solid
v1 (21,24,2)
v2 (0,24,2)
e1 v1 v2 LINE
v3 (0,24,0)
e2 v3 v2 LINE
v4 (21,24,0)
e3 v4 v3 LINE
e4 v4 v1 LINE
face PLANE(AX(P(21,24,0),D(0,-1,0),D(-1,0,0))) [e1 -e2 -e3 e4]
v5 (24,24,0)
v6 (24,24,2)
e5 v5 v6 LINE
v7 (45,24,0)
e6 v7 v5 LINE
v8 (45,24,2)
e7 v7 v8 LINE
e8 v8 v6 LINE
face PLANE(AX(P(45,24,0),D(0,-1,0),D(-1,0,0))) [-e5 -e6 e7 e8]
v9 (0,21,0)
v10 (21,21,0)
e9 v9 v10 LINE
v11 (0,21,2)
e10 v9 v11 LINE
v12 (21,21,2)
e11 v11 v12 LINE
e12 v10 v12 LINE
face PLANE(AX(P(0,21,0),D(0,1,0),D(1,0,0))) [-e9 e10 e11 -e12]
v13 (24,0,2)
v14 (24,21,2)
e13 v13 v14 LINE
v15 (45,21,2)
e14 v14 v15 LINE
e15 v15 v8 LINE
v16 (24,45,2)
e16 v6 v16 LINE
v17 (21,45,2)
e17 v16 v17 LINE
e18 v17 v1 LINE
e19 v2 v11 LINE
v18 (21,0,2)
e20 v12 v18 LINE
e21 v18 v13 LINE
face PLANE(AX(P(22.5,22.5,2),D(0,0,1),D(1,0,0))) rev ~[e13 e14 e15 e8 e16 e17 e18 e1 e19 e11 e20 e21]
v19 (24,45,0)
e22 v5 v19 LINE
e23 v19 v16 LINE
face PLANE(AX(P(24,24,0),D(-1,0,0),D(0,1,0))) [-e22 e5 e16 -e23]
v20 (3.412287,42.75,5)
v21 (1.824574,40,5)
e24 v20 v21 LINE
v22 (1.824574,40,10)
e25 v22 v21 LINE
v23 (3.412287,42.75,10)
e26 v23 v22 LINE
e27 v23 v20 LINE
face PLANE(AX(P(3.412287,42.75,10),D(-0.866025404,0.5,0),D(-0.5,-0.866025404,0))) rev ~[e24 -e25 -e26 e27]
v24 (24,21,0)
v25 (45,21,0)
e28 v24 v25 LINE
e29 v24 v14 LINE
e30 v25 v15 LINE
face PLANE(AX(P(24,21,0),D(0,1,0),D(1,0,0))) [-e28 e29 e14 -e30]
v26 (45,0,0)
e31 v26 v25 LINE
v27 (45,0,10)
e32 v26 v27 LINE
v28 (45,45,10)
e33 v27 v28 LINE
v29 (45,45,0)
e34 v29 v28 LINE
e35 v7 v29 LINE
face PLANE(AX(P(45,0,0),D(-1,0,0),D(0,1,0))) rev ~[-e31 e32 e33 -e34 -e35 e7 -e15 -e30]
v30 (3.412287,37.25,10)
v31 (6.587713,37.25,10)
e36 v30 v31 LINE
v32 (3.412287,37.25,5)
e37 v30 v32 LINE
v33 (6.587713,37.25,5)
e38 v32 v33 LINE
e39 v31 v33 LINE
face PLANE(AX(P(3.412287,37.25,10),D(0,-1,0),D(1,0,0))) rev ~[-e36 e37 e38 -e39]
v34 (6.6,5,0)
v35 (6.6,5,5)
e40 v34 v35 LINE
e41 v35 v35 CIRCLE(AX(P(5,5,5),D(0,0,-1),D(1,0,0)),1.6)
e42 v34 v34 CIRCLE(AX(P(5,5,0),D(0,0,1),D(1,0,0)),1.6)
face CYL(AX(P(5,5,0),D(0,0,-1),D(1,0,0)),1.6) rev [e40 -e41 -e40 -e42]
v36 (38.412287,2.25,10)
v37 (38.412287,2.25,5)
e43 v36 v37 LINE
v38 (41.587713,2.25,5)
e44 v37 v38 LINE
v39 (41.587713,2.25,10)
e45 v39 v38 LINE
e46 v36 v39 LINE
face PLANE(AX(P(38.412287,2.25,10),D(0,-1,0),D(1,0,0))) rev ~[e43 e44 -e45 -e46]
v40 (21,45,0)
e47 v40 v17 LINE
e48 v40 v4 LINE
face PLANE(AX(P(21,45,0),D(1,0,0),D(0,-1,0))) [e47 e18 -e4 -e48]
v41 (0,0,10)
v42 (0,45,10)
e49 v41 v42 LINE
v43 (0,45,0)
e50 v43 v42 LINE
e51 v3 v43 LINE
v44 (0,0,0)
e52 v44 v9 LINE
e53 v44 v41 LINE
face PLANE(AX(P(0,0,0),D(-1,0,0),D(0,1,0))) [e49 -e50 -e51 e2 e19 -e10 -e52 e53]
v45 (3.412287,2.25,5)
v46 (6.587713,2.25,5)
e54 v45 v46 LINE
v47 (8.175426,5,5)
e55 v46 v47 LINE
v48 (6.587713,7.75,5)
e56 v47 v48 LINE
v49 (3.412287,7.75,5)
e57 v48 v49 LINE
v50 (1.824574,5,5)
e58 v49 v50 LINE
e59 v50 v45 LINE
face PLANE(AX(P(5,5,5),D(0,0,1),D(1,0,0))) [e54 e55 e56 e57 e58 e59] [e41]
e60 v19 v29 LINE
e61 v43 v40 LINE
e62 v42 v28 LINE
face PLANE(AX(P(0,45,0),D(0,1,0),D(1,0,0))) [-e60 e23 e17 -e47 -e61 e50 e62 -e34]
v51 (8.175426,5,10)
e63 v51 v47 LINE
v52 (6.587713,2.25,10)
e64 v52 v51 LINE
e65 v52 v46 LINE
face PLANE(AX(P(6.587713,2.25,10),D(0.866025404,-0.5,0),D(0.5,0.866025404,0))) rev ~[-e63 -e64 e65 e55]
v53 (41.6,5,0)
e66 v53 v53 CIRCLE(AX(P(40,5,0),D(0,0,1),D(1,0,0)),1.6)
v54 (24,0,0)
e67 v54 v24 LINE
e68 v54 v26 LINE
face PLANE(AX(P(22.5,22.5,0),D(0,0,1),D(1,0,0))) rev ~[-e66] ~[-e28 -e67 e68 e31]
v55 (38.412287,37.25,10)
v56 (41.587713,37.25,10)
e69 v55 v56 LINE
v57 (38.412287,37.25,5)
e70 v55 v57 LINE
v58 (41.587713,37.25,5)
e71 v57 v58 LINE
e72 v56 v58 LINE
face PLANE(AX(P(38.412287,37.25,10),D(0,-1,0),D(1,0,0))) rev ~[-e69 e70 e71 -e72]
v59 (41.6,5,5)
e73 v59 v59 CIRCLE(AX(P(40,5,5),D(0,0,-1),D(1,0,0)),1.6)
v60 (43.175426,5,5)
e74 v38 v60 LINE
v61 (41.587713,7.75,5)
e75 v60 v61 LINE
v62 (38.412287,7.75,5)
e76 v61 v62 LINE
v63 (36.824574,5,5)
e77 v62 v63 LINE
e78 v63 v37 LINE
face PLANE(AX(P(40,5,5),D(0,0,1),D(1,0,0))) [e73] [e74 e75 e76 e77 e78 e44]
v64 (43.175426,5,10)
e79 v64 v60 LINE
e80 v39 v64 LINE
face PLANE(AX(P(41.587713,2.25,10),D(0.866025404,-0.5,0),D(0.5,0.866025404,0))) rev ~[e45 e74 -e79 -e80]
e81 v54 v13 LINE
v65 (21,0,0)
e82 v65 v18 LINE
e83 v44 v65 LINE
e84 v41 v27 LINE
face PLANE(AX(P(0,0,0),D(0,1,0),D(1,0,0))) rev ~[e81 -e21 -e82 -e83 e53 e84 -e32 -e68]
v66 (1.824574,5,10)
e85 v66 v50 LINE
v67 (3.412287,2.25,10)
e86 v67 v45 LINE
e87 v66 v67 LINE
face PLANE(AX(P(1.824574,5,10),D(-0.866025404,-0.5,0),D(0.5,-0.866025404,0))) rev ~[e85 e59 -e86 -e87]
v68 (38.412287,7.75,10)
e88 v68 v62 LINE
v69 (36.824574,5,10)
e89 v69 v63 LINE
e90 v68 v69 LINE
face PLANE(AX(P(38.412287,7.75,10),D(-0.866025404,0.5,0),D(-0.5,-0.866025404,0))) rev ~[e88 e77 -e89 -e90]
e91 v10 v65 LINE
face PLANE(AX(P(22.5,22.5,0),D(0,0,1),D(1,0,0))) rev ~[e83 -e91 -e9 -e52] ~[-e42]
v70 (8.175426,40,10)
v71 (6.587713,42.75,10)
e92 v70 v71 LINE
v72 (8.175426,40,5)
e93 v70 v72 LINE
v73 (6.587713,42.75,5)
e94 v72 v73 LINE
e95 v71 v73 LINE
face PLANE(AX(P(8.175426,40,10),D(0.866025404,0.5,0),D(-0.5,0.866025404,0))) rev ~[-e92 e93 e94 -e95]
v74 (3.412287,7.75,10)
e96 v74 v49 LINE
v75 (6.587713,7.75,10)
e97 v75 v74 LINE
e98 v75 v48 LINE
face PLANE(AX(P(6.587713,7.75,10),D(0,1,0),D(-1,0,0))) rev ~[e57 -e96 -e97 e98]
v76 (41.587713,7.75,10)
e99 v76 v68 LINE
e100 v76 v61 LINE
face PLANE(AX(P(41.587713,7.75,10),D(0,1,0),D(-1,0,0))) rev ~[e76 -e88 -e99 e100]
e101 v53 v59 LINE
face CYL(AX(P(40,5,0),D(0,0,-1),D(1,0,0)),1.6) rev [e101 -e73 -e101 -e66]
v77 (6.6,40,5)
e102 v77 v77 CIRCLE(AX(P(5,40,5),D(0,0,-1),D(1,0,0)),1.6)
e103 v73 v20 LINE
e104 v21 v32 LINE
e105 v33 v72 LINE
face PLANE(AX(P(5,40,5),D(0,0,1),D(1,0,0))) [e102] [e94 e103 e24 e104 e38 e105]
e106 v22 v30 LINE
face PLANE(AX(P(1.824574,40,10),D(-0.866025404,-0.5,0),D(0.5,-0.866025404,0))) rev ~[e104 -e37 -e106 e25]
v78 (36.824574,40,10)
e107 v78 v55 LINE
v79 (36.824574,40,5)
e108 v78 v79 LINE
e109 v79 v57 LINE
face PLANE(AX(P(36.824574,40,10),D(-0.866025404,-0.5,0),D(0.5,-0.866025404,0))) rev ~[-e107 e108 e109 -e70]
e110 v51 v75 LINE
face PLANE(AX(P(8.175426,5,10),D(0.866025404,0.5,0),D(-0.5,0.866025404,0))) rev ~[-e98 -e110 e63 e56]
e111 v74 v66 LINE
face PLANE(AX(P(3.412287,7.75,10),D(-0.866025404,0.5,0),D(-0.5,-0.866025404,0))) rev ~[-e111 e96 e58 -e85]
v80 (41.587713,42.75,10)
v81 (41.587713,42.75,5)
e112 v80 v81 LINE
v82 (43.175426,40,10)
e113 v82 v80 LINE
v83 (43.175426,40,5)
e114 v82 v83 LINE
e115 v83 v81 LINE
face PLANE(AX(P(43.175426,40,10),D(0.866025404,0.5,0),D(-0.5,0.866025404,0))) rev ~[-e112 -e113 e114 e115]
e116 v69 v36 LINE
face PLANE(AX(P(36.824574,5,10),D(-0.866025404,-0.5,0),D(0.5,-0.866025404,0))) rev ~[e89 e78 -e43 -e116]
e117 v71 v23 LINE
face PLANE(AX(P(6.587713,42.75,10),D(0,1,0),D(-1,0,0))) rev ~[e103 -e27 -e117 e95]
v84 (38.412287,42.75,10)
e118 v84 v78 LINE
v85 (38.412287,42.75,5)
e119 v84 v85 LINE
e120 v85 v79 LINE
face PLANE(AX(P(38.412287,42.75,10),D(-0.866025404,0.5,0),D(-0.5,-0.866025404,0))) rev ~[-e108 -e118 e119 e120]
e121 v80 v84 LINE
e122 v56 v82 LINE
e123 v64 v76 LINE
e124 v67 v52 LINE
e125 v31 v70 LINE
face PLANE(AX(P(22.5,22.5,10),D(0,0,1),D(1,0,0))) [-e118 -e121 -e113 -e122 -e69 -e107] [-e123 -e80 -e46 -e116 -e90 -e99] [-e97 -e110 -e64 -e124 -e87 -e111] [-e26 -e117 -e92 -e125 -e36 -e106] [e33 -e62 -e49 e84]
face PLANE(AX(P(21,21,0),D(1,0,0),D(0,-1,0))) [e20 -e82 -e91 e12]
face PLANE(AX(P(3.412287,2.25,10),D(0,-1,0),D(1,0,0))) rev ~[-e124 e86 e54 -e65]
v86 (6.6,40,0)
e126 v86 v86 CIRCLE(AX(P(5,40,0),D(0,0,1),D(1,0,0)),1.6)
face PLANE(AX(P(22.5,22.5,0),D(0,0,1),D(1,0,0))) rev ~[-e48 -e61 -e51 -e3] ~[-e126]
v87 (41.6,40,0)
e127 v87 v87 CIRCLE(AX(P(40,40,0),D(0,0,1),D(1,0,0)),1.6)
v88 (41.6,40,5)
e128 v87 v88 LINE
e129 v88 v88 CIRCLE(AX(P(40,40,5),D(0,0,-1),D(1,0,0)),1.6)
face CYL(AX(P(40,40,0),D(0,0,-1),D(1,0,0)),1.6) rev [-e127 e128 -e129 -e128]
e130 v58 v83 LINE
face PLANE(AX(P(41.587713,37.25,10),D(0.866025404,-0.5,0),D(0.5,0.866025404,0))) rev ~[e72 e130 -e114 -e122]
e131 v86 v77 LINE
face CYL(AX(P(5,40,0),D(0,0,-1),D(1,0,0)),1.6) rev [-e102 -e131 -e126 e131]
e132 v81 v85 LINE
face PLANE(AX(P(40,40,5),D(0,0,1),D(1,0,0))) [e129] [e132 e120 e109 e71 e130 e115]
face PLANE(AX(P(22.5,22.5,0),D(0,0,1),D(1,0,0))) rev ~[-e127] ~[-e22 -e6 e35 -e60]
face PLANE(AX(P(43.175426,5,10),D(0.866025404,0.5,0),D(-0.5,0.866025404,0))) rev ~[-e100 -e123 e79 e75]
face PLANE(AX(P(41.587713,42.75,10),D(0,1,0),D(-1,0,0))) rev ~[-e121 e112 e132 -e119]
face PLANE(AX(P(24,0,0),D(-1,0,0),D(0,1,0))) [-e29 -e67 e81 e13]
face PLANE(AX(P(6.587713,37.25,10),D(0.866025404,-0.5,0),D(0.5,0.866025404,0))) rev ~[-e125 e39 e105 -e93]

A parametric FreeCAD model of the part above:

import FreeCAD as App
import Part
import Sketcher

V = App.Vector
Q = App.Units.Quantity


def add_polygon(sketch, points):
    """Adds a closed chain of lines whose ends are joined by coincident constraints."""
    first, n = sketch.GeometryCount, len(points)
    for a, b in zip(points, points[1:] + points[:1]):
        sketch.addGeometry(Part.LineSegment(App.Vector(*a, 0), App.Vector(*b, 0)), False)
    for i in range(n):
        sketch.addConstraint(Sketcher.Constraint("Coincident", first + i, 2, first + (i + 1) % n, 1))

doc = App.newDocument("Part")
params = doc.addObject("Spreadsheet::Sheet", "Params")
for row, (alias, value) in enumerate([
    ("sketch1_diameter", "3.2 mm"),
    ("sketch1_width", "45 mm"),
    ("pad1_length", "10 mm"),
    ("pocket1_length", "5 mm"),
    ("sketch3_width", "21 mm"),
    ("sketch3_width2", "3 mm"),
    ("pocket2_length", "2 mm"),
], start=1):
    params.set(f"A{row}", alias)
    params.set(f"B{row}", "=" + value)
    params.setAlias(f"B{row}", alias)

body = doc.addObject("PartDesign::Body", "Body")

# Sketch on XY plane
sketch1 = body.newObject("Sketcher::SketchObject", "Sketch")
sketch1.AttachmentSupport = (doc.getObject("XY_Plane"), [""])
sketch1.MapMode = "FlatFace"
add_polygon(sketch1, [(0, 45), (0, 0), (45, 0), (45, 45)])  # lines 0-3
sketch1.addGeometry(Part.Circle(V(5, 5, 0), V(0, 0, 1), 1.6), False)  # 4
sketch1.addGeometry(Part.Circle(V(40, 5, 0), V(0, 0, 1), 1.6), False)  # 5
sketch1.addGeometry(Part.Circle(V(5, 40, 0), V(0, 0, 1), 1.6), False)  # 6
sketch1.addGeometry(Part.Circle(V(40, 40, 0), V(0, 0, 1), 1.6), False)  # 7
sketch1.addConstraint(Sketcher.Constraint("Vertical", 0))
sketch1.addConstraint(Sketcher.Constraint("Horizontal", 1))
sketch1.addConstraint(Sketcher.Constraint("Vertical", 2))
sketch1.addConstraint(Sketcher.Constraint("Horizontal", 3))
sketch1.addConstraint(Sketcher.Constraint("Coincident", 0, 2, -1, 1))
sketch1.addConstraint(Sketcher.Constraint("Equal", 4, 5))
sketch1.addConstraint(Sketcher.Constraint("Equal", 5, 6))
sketch1.addConstraint(Sketcher.Constraint("Equal", 6, 7))
sketch1.addConstraint(Sketcher.Constraint("Horizontal", 4, 3, 5, 3))
sketch1.addConstraint(Sketcher.Constraint("Horizontal", 6, 3, 7, 3))
sketch1.addConstraint(Sketcher.Constraint("Vertical", 4, 3, 6, 3))
sketch1.addConstraint(Sketcher.Constraint("Vertical", 5, 3, 7, 3))
sketch1.addConstraint(Sketcher.Constraint("Equal", 3, 0))
sketch1.addConstraint(Sketcher.Constraint("Diameter", 4, Q("3.2 mm")))
sketch1.addConstraint(Sketcher.Constraint("DistanceX", 1, 1, 1, 2, Q("45 mm")))
sketch1.addConstraint(Sketcher.Constraint("DistanceX", -1, 1, 4, 3, Q("5 mm")))
sketch1.addConstraint(Sketcher.Constraint("DistanceY", -1, 1, 4, 3, Q("5 mm")))
sketch1.addConstraint(Sketcher.Constraint("DistanceX", -1, 1, 5, 3, Q("40 mm")))
sketch1.addConstraint(Sketcher.Constraint("DistanceY", -1, 1, 6, 3, Q("40 mm")))
sketch1.setExpression("Constraints[17]", "Params.sketch1_diameter")
sketch1.setExpression("Constraints[18]", "Params.sketch1_width")
pad1 = body.newObject("PartDesign::Pad", "Pad")
pad1.Profile = sketch1
pad1.setExpression("Length", "Params.pad1_length")

# Sketch on XY plane
sketch2 = body.newObject("Sketcher::SketchObject", "Sketch001")
sketch2.AttachmentSupport = (doc.getObject("XY_Plane"), [""])
sketch2.MapMode = "FlatFace"
sketch2.AttachmentOffset = App.Placement(V(0, 0, 10), App.Rotation())
add_polygon(sketch2, [(8.2, 5), (6.6, 7.8), (3.4, 7.8), (1.8, 5), (3.4, 2.2), (6.6, 2.2)])  # lines 0-5
add_polygon(sketch2, [(8.2, 40), (6.6, 42.8), (3.4, 42.8), (1.8, 40), (3.4, 37.2), (6.6, 37.2)])  # lines 6-11
add_polygon(sketch2, [(43.2, 40), (41.6, 42.8), (38.4, 42.8), (36.8, 40), (38.4, 37.2), (41.6, 37.2)])  # lines 12-17
add_polygon(sketch2, [(43.2, 5), (41.6, 7.8), (38.4, 7.8), (36.8, 5), (38.4, 2.2), (41.6, 2.2)])  # lines 18-23
sketch2.addConstraint(Sketcher.Constraint("Horizontal", 1))
sketch2.addConstraint(Sketcher.Constraint("Horizontal", 4))
sketch2.addConstraint(Sketcher.Constraint("Horizontal", 7))
sketch2.addConstraint(Sketcher.Constraint("Horizontal", 10))
sketch2.addConstraint(Sketcher.Constraint("Horizontal", 13))
sketch2.addConstraint(Sketcher.Constraint("Horizontal", 16))
sketch2.addConstraint(Sketcher.Constraint("Horizontal", 19))
sketch2.addConstraint(Sketcher.Constraint("Horizontal", 22))
sketch2.addConstraint(Sketcher.Constraint("Parallel", 0, 3))
sketch2.addConstraint(Sketcher.Constraint("Parallel", 2, 5))
sketch2.addConstraint(Sketcher.Constraint("Parallel", 3, 6))
sketch2.addConstraint(Sketcher.Constraint("Parallel", 5, 8))
sketch2.addConstraint(Sketcher.Constraint("Parallel", 6, 9))
sketch2.addConstraint(Sketcher.Constraint("Parallel", 8, 11))
sketch2.addConstraint(Sketcher.Constraint("Parallel", 9, 12))
sketch2.addConstraint(Sketcher.Constraint("Parallel", 11, 14))
sketch2.addConstraint(Sketcher.Constraint("Parallel", 12, 15))
sketch2.addConstraint(Sketcher.Constraint("Parallel", 14, 17))
sketch2.addConstraint(Sketcher.Constraint("Parallel", 15, 18))
sketch2.addConstraint(Sketcher.Constraint("Parallel", 17, 20))
sketch2.addConstraint(Sketcher.Constraint("Parallel", 18, 21))
sketch2.addConstraint(Sketcher.Constraint("Parallel", 20, 23))
sketch2.addConstraint(Sketcher.Constraint("Horizontal", 2, 2, 5, 2))
sketch2.addConstraint(Sketcher.Constraint("Horizontal", 8, 2, 11, 2))
sketch2.addConstraint(Sketcher.Constraint("Horizontal", 7, 2, 12, 2))
sketch2.addConstraint(Sketcher.Constraint("Horizontal", 11, 2, 14, 2))
sketch2.addConstraint(Sketcher.Constraint("Horizontal", 10, 2, 15, 2))
sketch2.addConstraint(Sketcher.Constraint("Horizontal", 14, 2, 17, 2))
sketch2.addConstraint(Sketcher.Constraint("Horizontal", 1, 2, 18, 2))
sketch2.addConstraint(Sketcher.Constraint("Horizontal", 5, 2, 20, 2))
sketch2.addConstraint(Sketcher.Constraint("Horizontal", 4, 2, 21, 2))
sketch2.addConstraint(Sketcher.Constraint("Horizontal", 20, 2, 23, 2))
sketch2.addConstraint(Sketcher.Constraint("Vertical", 1, 2, 3, 2))
sketch2.addConstraint(Sketcher.Constraint("Vertical", 0, 2, 4, 2))
sketch2.addConstraint(Sketcher.Constraint("Vertical", 4, 2, 6, 2))
sketch2.addConstraint(Sketcher.Constraint("Vertical", 3, 2, 7, 2))
sketch2.addConstraint(Sketcher.Constraint("Vertical", 2, 2, 8, 2))
sketch2.addConstraint(Sketcher.Constraint("Vertical", 7, 2, 9, 2))
sketch2.addConstraint(Sketcher.Constraint("Vertical", 16, 2, 18, 2))
sketch2.addConstraint(Sketcher.Constraint("Vertical", 15, 2, 19, 2))
sketch2.addConstraint(Sketcher.Constraint("Equal", 10, 13))
sketch2.addConstraint(Sketcher.Constraint("Angle", 0, Q("120 deg")))
sketch2.addConstraint(Sketcher.Constraint("DistanceY", -1, 1, 2, 2, Q("5 mm")))
sketch2.addConstraint(Sketcher.Constraint("DistanceY", -1, 1, 8, 2, Q("40 mm")))
sketch2.addConstraint(Sketcher.Constraint("DistanceX", 6, 2, 12, 2, Q("35 mm")))
sketch2.addConstraint(Sketcher.Constraint("DistanceY", 3, 2, 1, 2, Q("5.5 mm")))
sketch2.addConstraint(Sketcher.Constraint("DistanceX", 1, 2, 1, 1, Q("3.175426 mm")))
sketch2.addConstraint(Sketcher.Constraint("DistanceX", -1, 1, 0, 2, Q("6.587713 mm")))
pocket1 = body.newObject("PartDesign::Pocket", "Pocket")
pocket1.Profile = sketch2
pocket1.setExpression("Length", "Params.pocket1_length")

# Sketch on XY plane
sketch3 = body.newObject("Sketcher::SketchObject", "Sketch002")
sketch3.AttachmentSupport = (doc.getObject("XY_Plane"), [""])
sketch3.MapMode = "FlatFace"
add_polygon(sketch3, [(24, 24), (45, 24), (45, 21), (24, 21), (24, 0), (21, 0), (21, 21), (0, 21), (0, 24), (21, 24), (21, 45), (24, 45)])  # lines 0-11
sketch3.addConstraint(Sketcher.Constraint("Horizontal", 0))
sketch3.addConstraint(Sketcher.Constraint("Vertical", 1))
sketch3.addConstraint(Sketcher.Constraint("Horizontal", 2))
sketch3.addConstraint(Sketcher.Constraint("Vertical", 3))
sketch3.addConstraint(Sketcher.Constraint("Horizontal", 4))
sketch3.addConstraint(Sketcher.Constraint("Vertical", 5))
sketch3.addConstraint(Sketcher.Constraint("Horizontal", 6))
sketch3.addConstraint(Sketcher.Constraint("Vertical", 7))
sketch3.addConstraint(Sketcher.Constraint("Horizontal", 8))
sketch3.addConstraint(Sketcher.Constraint("Vertical", 9))
sketch3.addConstraint(Sketcher.Constraint("Horizontal", 10))
sketch3.addConstraint(Sketcher.Constraint("Vertical", 11))
sketch3.addConstraint(Sketcher.Constraint("PointOnObject", 3, 2, -1))
sketch3.addConstraint(Sketcher.Constraint("PointOnObject", 6, 2, -2))
sketch3.addConstraint(Sketcher.Constraint("Horizontal", 2, 2, 5, 2))
sketch3.addConstraint(Sketcher.Constraint("Horizontal", 0, 2, 7, 2))
sketch3.addConstraint(Sketcher.Constraint("Vertical", 5, 2, 8, 2))
sketch3.addConstraint(Sketcher.Constraint("Vertical", 3, 2, 10, 2))
sketch3.addConstraint(Sketcher.Constraint("Equal", 2, 6))
sketch3.addConstraint(Sketcher.Constraint("Equal", 10, 1))
sketch3.addConstraint(Sketcher.Constraint("Equal", 8, 3))
sketch3.addConstraint(Sketcher.Constraint("Equal", 5, 9))
sketch3.addConstraint(Sketcher.Constraint("DistanceX", 0, 1, 0, 2, Q("21 mm")))
sketch3.addConstraint(Sketcher.Constraint("DistanceX", 4, 2, 4, 1, Q("3 mm")))
sketch3.setExpression("Constraints[34]", "Params.sketch3_width")
sketch3.setExpression("Constraints[35]", "Params.sketch3_width2")
pocket2 = body.newObject("PartDesign::Pocket", "Pocket001")
pocket2.Profile = sketch3
pocket2.setExpression("Length", "Params.pocket2_length")
pocket2.Reversed = True

doc.recompute()
